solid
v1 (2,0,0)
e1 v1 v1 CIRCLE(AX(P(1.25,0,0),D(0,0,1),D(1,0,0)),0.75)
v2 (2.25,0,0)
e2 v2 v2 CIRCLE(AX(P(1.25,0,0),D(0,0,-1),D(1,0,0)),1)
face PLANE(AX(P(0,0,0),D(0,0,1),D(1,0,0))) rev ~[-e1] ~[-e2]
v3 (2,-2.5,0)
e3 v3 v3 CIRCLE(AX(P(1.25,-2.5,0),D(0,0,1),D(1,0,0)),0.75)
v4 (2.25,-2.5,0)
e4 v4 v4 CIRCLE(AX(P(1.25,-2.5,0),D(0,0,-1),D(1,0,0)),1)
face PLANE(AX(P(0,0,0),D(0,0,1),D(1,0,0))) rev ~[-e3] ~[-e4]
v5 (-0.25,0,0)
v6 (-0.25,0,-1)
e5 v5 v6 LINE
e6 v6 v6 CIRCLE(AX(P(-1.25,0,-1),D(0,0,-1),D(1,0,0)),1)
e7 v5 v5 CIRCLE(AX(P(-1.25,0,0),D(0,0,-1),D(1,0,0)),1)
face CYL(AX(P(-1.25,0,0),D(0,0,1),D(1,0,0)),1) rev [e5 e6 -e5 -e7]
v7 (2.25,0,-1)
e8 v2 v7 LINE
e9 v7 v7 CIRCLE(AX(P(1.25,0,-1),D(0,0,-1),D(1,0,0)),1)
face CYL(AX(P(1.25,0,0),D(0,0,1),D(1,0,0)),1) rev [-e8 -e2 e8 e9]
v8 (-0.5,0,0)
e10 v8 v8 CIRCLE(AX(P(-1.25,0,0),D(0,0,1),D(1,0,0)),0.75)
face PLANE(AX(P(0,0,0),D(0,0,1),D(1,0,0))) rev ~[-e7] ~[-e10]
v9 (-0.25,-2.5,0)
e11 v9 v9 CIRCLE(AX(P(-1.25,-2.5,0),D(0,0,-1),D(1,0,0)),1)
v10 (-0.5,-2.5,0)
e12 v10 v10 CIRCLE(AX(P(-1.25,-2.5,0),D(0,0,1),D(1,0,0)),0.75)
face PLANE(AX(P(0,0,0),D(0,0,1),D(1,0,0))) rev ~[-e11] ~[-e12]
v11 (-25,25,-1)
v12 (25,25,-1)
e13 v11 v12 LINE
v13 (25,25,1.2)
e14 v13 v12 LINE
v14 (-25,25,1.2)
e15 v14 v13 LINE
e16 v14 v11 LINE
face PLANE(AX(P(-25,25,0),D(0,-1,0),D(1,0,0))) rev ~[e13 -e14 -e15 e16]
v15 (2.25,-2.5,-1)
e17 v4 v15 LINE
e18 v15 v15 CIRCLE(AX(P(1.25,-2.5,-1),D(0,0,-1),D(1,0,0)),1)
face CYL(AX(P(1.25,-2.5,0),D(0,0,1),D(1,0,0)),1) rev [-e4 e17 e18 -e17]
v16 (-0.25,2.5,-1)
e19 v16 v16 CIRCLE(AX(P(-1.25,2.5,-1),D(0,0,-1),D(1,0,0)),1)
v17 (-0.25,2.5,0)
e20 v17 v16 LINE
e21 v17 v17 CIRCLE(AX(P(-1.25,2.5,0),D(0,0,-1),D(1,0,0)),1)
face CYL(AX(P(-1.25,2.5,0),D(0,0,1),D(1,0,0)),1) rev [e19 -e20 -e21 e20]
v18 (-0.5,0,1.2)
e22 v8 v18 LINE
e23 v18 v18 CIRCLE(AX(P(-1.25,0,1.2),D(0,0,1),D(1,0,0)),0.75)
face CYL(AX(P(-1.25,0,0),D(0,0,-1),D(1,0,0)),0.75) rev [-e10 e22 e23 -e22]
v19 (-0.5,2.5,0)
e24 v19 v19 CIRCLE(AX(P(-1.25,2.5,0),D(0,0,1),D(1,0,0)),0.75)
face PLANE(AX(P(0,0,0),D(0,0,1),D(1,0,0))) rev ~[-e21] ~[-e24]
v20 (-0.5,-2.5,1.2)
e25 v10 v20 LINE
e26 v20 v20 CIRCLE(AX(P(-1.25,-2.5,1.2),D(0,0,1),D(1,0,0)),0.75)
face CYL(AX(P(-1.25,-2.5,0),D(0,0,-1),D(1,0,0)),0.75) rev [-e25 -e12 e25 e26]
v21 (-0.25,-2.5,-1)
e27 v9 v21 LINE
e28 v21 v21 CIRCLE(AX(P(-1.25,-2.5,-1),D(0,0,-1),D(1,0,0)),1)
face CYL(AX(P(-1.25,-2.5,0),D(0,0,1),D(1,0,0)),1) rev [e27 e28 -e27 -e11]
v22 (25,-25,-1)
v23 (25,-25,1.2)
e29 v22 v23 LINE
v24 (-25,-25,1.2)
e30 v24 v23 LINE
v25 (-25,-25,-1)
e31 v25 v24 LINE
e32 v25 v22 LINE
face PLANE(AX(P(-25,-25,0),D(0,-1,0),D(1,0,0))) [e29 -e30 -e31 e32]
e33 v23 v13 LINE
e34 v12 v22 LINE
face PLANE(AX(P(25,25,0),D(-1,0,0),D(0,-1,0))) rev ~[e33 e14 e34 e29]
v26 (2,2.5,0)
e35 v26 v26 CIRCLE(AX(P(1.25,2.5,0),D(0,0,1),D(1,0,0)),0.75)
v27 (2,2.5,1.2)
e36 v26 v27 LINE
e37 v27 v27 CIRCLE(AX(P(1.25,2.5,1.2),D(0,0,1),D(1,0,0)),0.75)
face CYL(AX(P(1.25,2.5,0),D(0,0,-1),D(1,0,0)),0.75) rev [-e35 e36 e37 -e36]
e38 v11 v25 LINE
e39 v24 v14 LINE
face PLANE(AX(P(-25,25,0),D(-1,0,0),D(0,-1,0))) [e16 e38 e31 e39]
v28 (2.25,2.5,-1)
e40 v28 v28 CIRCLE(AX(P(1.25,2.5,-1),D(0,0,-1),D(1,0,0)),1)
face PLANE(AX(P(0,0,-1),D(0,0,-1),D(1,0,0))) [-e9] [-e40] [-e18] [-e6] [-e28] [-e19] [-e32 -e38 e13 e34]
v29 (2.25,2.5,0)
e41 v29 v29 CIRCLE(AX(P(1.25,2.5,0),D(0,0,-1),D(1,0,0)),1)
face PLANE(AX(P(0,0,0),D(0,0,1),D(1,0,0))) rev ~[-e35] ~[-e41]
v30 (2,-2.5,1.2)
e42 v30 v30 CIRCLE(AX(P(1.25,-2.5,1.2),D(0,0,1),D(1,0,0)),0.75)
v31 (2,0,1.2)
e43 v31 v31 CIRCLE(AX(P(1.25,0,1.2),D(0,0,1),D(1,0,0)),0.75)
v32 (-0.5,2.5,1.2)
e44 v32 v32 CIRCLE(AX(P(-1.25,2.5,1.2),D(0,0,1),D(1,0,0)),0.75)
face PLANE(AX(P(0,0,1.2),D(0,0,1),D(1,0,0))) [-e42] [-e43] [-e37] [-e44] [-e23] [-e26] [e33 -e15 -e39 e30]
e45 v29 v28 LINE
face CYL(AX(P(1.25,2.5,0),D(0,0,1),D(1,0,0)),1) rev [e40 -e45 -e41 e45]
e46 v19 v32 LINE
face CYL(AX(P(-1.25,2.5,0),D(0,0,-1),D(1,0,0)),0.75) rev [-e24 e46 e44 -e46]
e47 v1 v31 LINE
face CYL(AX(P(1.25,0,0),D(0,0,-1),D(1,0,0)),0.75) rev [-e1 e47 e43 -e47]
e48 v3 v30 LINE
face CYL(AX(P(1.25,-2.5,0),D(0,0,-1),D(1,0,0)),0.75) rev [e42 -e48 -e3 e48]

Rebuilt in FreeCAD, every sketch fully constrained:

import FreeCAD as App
import Part
import Sketcher
from FreeCAD import Vector

doc = App.newDocument("Part")
body = doc.addObject("PartDesign::Body", "Body")

# Sketch on XY plane
sketch1 = doc.addObject("Sketcher::SketchObject", "Sketch")
body.addObject(sketch1)
sketch1.AttachmentSupport = (doc.XY_Plane, [""])
sketch1.MapMode = "FlatFace"
sketch1.addGeometry([
    Part.LineSegment(Vector(-25, 25, 0), Vector(-25, -25, 0)),  # 0
    Part.LineSegment(Vector(-25, -25, 0), Vector(25, -25, 0)),  # 1
    Part.LineSegment(Vector(25, -25, 0), Vector(25, 25, 0)),  # 2
    Part.LineSegment(Vector(25, 25, 0), Vector(-25, 25, 0)),  # 3
    Part.Circle(Vector(-1.25, -2.5, 0), Vector(0, 0, 1), 0.75),  # 4
    Part.Circle(Vector(1.25, -2.5, 0), Vector(0, 0, 1), 0.75),  # 5
    Part.Circle(Vector(-1.25, 0, 0), Vector(0, 0, 1), 0.75),  # 6
    Part.Circle(Vector(-1.25, 2.5, 0), Vector(0, 0, 1), 0.75),  # 7
    Part.Circle(Vector(1.25, 0, 0), Vector(0, 0, 1), 0.75),  # 8
    Part.Circle(Vector(1.25, 2.5, 0), Vector(0, 0, 1), 0.75),  # 9
], False)
sketch1.addConstraint([
    Sketcher.Constraint("Coincident", 0, 2, 1, 1),
    Sketcher.Constraint("Coincident", 1, 2, 2, 1),
    Sketcher.Constraint("Coincident", 2, 2, 3, 1),
    Sketcher.Constraint("Coincident", 3, 2, 0, 1),
    Sketcher.Constraint("Vertical", 0),
    Sketcher.Constraint("Horizontal", 1),
    Sketcher.Constraint("Vertical", 2),
    Sketcher.Constraint("Horizontal", 3),
    Sketcher.Constraint("Equal", 4, 5),
    Sketcher.Constraint("Equal", 5, 6),
    Sketcher.Constraint("Equal", 6, 7),
    Sketcher.Constraint("Equal", 7, 8),
    Sketcher.Constraint("Equal", 8, 9),
    Sketcher.Constraint("Symmetric", 5, 3, 7, 3, -1, 1),
    Sketcher.Constraint("Symmetric", 6, 3, 8, 3, -1, 1),
    Sketcher.Constraint("Symmetric", 4, 3, 9, 3, -1, 1),
    Sketcher.Constraint("Symmetric", 0, 2, 2, 2, -1, 1),
    Sketcher.Constraint("Symmetric", 4, 3, 5, 3, -2),
    Sketcher.Constraint("PointOnObject", 6, 3, -1),
    Sketcher.Constraint("Vertical", 4, 3, 6, 3),
    Sketcher.Constraint("Equal", 3, 0),
    Sketcher.Constraint("Diameter", 4, 1.5),
    Sketcher.Constraint("DistanceX", 1, 1, 1, 2, 50.0),
    Sketcher.Constraint("DistanceY", 4, 3, 7, 3, 5.0),
    Sketcher.Constraint("DistanceX", 4, 3, 5, 3, 2.5),
])
pad1 = doc.addObject("PartDesign::Pad", "Pad")
body.addObject(pad1)
pad1.Profile = sketch1
pad1.Length = 1.2

# Sketch on XY plane
sketch2 = doc.addObject("Sketcher::SketchObject", "Sketch001")
body.addObject(sketch2)
sketch2.AttachmentSupport = (doc.XY_Plane, [""])
sketch2.MapMode = "FlatFace"
sketch2.addGeometry([
    Part.LineSegment(Vector(-25, -25, 0), Vector(-25, 25, 0)),  # 0
    Part.LineSegment(Vector(-25, 25, 0), Vector(25, 25, 0)),  # 1
    Part.LineSegment(Vector(25, 25, 0), Vector(25, -25, 0)),  # 2
    Part.LineSegment(Vector(25, -25, 0), Vector(-25, -25, 0)),  # 3
    Part.Circle(Vector(-1.25, 2.5, 0), Vector(0, 0, 1), 1),  # 4
    Part.Circle(Vector(1.25, 2.5, 0), Vector(0, 0, 1), 1),  # 5
    Part.Circle(Vector(-1.25, 0, 0), Vector(0, 0, 1), 1),  # 6
    Part.Circle(Vector(-1.25, -2.5, 0), Vector(0, 0, 1), 1),  # 7
    Part.Circle(Vector(1.25, 0, 0), Vector(0, 0, 1), 1),  # 8
    Part.Circle(Vector(1.25, -2.5, 0), Vector(0, 0, 1), 1),  # 9
], False)
sketch2.addConstraint([
    Sketcher.Constraint("Coincident", 0, 2, 1, 1),
    Sketcher.Constraint("Coincident", 1, 2, 2, 1),
    Sketcher.Constraint("Coincident", 2, 2, 3, 1),
    Sketcher.Constraint("Coincident", 3, 2, 0, 1),
    Sketcher.Constraint("Vertical", 0),
    Sketcher.Constraint("Horizontal", 1),
    Sketcher.Constraint("Vertical", 2),
    Sketcher.Constraint("Horizontal", 3),
    Sketcher.Constraint("Equal", 4, 5),
    Sketcher.Constraint("Equal", 5, 6),
    Sketcher.Constraint("Equal", 6, 7),
    Sketcher.Constraint("Equal", 7, 8),
    Sketcher.Constraint("Equal", 8, 9),
    Sketcher.Constraint("Symmetric", 5, 3, 7, 3, -1, 1),
    Sketcher.Constraint("Symmetric", 6, 3, 8, 3, -1, 1),
    Sketcher.Constraint("Symmetric", 4, 3, 9, 3, -1, 1),
    Sketcher.Constraint("Symmetric", 0, 2, 2, 2, -1, 1),
    Sketcher.Constraint("Symmetric", 4, 3, 5, 3, -2),
    Sketcher.Constraint("PointOnObject", 6, 3, -1),
    Sketcher.Constraint("Vertical", 4, 3, 6, 3),
    Sketcher.Constraint("Equal", 3, 0),
    Sketcher.Constraint("Diameter", 4, 2.0),
    Sketcher.Constraint("DistanceX", 1, 1, 1, 2, 50.0),
    Sketcher.Constraint("DistanceY", 7, 3, 4, 3, 5.0),
    Sketcher.Constraint("DistanceX", 4, 3, 5, 3, 2.5),
])
pad2 = doc.addObject("PartDesign::Pad", "Pad001")
body.addObject(pad2)
pad2.Profile = sketch2
pad2.Length = 1
pad2.Reversed = True

doc.recompute()
